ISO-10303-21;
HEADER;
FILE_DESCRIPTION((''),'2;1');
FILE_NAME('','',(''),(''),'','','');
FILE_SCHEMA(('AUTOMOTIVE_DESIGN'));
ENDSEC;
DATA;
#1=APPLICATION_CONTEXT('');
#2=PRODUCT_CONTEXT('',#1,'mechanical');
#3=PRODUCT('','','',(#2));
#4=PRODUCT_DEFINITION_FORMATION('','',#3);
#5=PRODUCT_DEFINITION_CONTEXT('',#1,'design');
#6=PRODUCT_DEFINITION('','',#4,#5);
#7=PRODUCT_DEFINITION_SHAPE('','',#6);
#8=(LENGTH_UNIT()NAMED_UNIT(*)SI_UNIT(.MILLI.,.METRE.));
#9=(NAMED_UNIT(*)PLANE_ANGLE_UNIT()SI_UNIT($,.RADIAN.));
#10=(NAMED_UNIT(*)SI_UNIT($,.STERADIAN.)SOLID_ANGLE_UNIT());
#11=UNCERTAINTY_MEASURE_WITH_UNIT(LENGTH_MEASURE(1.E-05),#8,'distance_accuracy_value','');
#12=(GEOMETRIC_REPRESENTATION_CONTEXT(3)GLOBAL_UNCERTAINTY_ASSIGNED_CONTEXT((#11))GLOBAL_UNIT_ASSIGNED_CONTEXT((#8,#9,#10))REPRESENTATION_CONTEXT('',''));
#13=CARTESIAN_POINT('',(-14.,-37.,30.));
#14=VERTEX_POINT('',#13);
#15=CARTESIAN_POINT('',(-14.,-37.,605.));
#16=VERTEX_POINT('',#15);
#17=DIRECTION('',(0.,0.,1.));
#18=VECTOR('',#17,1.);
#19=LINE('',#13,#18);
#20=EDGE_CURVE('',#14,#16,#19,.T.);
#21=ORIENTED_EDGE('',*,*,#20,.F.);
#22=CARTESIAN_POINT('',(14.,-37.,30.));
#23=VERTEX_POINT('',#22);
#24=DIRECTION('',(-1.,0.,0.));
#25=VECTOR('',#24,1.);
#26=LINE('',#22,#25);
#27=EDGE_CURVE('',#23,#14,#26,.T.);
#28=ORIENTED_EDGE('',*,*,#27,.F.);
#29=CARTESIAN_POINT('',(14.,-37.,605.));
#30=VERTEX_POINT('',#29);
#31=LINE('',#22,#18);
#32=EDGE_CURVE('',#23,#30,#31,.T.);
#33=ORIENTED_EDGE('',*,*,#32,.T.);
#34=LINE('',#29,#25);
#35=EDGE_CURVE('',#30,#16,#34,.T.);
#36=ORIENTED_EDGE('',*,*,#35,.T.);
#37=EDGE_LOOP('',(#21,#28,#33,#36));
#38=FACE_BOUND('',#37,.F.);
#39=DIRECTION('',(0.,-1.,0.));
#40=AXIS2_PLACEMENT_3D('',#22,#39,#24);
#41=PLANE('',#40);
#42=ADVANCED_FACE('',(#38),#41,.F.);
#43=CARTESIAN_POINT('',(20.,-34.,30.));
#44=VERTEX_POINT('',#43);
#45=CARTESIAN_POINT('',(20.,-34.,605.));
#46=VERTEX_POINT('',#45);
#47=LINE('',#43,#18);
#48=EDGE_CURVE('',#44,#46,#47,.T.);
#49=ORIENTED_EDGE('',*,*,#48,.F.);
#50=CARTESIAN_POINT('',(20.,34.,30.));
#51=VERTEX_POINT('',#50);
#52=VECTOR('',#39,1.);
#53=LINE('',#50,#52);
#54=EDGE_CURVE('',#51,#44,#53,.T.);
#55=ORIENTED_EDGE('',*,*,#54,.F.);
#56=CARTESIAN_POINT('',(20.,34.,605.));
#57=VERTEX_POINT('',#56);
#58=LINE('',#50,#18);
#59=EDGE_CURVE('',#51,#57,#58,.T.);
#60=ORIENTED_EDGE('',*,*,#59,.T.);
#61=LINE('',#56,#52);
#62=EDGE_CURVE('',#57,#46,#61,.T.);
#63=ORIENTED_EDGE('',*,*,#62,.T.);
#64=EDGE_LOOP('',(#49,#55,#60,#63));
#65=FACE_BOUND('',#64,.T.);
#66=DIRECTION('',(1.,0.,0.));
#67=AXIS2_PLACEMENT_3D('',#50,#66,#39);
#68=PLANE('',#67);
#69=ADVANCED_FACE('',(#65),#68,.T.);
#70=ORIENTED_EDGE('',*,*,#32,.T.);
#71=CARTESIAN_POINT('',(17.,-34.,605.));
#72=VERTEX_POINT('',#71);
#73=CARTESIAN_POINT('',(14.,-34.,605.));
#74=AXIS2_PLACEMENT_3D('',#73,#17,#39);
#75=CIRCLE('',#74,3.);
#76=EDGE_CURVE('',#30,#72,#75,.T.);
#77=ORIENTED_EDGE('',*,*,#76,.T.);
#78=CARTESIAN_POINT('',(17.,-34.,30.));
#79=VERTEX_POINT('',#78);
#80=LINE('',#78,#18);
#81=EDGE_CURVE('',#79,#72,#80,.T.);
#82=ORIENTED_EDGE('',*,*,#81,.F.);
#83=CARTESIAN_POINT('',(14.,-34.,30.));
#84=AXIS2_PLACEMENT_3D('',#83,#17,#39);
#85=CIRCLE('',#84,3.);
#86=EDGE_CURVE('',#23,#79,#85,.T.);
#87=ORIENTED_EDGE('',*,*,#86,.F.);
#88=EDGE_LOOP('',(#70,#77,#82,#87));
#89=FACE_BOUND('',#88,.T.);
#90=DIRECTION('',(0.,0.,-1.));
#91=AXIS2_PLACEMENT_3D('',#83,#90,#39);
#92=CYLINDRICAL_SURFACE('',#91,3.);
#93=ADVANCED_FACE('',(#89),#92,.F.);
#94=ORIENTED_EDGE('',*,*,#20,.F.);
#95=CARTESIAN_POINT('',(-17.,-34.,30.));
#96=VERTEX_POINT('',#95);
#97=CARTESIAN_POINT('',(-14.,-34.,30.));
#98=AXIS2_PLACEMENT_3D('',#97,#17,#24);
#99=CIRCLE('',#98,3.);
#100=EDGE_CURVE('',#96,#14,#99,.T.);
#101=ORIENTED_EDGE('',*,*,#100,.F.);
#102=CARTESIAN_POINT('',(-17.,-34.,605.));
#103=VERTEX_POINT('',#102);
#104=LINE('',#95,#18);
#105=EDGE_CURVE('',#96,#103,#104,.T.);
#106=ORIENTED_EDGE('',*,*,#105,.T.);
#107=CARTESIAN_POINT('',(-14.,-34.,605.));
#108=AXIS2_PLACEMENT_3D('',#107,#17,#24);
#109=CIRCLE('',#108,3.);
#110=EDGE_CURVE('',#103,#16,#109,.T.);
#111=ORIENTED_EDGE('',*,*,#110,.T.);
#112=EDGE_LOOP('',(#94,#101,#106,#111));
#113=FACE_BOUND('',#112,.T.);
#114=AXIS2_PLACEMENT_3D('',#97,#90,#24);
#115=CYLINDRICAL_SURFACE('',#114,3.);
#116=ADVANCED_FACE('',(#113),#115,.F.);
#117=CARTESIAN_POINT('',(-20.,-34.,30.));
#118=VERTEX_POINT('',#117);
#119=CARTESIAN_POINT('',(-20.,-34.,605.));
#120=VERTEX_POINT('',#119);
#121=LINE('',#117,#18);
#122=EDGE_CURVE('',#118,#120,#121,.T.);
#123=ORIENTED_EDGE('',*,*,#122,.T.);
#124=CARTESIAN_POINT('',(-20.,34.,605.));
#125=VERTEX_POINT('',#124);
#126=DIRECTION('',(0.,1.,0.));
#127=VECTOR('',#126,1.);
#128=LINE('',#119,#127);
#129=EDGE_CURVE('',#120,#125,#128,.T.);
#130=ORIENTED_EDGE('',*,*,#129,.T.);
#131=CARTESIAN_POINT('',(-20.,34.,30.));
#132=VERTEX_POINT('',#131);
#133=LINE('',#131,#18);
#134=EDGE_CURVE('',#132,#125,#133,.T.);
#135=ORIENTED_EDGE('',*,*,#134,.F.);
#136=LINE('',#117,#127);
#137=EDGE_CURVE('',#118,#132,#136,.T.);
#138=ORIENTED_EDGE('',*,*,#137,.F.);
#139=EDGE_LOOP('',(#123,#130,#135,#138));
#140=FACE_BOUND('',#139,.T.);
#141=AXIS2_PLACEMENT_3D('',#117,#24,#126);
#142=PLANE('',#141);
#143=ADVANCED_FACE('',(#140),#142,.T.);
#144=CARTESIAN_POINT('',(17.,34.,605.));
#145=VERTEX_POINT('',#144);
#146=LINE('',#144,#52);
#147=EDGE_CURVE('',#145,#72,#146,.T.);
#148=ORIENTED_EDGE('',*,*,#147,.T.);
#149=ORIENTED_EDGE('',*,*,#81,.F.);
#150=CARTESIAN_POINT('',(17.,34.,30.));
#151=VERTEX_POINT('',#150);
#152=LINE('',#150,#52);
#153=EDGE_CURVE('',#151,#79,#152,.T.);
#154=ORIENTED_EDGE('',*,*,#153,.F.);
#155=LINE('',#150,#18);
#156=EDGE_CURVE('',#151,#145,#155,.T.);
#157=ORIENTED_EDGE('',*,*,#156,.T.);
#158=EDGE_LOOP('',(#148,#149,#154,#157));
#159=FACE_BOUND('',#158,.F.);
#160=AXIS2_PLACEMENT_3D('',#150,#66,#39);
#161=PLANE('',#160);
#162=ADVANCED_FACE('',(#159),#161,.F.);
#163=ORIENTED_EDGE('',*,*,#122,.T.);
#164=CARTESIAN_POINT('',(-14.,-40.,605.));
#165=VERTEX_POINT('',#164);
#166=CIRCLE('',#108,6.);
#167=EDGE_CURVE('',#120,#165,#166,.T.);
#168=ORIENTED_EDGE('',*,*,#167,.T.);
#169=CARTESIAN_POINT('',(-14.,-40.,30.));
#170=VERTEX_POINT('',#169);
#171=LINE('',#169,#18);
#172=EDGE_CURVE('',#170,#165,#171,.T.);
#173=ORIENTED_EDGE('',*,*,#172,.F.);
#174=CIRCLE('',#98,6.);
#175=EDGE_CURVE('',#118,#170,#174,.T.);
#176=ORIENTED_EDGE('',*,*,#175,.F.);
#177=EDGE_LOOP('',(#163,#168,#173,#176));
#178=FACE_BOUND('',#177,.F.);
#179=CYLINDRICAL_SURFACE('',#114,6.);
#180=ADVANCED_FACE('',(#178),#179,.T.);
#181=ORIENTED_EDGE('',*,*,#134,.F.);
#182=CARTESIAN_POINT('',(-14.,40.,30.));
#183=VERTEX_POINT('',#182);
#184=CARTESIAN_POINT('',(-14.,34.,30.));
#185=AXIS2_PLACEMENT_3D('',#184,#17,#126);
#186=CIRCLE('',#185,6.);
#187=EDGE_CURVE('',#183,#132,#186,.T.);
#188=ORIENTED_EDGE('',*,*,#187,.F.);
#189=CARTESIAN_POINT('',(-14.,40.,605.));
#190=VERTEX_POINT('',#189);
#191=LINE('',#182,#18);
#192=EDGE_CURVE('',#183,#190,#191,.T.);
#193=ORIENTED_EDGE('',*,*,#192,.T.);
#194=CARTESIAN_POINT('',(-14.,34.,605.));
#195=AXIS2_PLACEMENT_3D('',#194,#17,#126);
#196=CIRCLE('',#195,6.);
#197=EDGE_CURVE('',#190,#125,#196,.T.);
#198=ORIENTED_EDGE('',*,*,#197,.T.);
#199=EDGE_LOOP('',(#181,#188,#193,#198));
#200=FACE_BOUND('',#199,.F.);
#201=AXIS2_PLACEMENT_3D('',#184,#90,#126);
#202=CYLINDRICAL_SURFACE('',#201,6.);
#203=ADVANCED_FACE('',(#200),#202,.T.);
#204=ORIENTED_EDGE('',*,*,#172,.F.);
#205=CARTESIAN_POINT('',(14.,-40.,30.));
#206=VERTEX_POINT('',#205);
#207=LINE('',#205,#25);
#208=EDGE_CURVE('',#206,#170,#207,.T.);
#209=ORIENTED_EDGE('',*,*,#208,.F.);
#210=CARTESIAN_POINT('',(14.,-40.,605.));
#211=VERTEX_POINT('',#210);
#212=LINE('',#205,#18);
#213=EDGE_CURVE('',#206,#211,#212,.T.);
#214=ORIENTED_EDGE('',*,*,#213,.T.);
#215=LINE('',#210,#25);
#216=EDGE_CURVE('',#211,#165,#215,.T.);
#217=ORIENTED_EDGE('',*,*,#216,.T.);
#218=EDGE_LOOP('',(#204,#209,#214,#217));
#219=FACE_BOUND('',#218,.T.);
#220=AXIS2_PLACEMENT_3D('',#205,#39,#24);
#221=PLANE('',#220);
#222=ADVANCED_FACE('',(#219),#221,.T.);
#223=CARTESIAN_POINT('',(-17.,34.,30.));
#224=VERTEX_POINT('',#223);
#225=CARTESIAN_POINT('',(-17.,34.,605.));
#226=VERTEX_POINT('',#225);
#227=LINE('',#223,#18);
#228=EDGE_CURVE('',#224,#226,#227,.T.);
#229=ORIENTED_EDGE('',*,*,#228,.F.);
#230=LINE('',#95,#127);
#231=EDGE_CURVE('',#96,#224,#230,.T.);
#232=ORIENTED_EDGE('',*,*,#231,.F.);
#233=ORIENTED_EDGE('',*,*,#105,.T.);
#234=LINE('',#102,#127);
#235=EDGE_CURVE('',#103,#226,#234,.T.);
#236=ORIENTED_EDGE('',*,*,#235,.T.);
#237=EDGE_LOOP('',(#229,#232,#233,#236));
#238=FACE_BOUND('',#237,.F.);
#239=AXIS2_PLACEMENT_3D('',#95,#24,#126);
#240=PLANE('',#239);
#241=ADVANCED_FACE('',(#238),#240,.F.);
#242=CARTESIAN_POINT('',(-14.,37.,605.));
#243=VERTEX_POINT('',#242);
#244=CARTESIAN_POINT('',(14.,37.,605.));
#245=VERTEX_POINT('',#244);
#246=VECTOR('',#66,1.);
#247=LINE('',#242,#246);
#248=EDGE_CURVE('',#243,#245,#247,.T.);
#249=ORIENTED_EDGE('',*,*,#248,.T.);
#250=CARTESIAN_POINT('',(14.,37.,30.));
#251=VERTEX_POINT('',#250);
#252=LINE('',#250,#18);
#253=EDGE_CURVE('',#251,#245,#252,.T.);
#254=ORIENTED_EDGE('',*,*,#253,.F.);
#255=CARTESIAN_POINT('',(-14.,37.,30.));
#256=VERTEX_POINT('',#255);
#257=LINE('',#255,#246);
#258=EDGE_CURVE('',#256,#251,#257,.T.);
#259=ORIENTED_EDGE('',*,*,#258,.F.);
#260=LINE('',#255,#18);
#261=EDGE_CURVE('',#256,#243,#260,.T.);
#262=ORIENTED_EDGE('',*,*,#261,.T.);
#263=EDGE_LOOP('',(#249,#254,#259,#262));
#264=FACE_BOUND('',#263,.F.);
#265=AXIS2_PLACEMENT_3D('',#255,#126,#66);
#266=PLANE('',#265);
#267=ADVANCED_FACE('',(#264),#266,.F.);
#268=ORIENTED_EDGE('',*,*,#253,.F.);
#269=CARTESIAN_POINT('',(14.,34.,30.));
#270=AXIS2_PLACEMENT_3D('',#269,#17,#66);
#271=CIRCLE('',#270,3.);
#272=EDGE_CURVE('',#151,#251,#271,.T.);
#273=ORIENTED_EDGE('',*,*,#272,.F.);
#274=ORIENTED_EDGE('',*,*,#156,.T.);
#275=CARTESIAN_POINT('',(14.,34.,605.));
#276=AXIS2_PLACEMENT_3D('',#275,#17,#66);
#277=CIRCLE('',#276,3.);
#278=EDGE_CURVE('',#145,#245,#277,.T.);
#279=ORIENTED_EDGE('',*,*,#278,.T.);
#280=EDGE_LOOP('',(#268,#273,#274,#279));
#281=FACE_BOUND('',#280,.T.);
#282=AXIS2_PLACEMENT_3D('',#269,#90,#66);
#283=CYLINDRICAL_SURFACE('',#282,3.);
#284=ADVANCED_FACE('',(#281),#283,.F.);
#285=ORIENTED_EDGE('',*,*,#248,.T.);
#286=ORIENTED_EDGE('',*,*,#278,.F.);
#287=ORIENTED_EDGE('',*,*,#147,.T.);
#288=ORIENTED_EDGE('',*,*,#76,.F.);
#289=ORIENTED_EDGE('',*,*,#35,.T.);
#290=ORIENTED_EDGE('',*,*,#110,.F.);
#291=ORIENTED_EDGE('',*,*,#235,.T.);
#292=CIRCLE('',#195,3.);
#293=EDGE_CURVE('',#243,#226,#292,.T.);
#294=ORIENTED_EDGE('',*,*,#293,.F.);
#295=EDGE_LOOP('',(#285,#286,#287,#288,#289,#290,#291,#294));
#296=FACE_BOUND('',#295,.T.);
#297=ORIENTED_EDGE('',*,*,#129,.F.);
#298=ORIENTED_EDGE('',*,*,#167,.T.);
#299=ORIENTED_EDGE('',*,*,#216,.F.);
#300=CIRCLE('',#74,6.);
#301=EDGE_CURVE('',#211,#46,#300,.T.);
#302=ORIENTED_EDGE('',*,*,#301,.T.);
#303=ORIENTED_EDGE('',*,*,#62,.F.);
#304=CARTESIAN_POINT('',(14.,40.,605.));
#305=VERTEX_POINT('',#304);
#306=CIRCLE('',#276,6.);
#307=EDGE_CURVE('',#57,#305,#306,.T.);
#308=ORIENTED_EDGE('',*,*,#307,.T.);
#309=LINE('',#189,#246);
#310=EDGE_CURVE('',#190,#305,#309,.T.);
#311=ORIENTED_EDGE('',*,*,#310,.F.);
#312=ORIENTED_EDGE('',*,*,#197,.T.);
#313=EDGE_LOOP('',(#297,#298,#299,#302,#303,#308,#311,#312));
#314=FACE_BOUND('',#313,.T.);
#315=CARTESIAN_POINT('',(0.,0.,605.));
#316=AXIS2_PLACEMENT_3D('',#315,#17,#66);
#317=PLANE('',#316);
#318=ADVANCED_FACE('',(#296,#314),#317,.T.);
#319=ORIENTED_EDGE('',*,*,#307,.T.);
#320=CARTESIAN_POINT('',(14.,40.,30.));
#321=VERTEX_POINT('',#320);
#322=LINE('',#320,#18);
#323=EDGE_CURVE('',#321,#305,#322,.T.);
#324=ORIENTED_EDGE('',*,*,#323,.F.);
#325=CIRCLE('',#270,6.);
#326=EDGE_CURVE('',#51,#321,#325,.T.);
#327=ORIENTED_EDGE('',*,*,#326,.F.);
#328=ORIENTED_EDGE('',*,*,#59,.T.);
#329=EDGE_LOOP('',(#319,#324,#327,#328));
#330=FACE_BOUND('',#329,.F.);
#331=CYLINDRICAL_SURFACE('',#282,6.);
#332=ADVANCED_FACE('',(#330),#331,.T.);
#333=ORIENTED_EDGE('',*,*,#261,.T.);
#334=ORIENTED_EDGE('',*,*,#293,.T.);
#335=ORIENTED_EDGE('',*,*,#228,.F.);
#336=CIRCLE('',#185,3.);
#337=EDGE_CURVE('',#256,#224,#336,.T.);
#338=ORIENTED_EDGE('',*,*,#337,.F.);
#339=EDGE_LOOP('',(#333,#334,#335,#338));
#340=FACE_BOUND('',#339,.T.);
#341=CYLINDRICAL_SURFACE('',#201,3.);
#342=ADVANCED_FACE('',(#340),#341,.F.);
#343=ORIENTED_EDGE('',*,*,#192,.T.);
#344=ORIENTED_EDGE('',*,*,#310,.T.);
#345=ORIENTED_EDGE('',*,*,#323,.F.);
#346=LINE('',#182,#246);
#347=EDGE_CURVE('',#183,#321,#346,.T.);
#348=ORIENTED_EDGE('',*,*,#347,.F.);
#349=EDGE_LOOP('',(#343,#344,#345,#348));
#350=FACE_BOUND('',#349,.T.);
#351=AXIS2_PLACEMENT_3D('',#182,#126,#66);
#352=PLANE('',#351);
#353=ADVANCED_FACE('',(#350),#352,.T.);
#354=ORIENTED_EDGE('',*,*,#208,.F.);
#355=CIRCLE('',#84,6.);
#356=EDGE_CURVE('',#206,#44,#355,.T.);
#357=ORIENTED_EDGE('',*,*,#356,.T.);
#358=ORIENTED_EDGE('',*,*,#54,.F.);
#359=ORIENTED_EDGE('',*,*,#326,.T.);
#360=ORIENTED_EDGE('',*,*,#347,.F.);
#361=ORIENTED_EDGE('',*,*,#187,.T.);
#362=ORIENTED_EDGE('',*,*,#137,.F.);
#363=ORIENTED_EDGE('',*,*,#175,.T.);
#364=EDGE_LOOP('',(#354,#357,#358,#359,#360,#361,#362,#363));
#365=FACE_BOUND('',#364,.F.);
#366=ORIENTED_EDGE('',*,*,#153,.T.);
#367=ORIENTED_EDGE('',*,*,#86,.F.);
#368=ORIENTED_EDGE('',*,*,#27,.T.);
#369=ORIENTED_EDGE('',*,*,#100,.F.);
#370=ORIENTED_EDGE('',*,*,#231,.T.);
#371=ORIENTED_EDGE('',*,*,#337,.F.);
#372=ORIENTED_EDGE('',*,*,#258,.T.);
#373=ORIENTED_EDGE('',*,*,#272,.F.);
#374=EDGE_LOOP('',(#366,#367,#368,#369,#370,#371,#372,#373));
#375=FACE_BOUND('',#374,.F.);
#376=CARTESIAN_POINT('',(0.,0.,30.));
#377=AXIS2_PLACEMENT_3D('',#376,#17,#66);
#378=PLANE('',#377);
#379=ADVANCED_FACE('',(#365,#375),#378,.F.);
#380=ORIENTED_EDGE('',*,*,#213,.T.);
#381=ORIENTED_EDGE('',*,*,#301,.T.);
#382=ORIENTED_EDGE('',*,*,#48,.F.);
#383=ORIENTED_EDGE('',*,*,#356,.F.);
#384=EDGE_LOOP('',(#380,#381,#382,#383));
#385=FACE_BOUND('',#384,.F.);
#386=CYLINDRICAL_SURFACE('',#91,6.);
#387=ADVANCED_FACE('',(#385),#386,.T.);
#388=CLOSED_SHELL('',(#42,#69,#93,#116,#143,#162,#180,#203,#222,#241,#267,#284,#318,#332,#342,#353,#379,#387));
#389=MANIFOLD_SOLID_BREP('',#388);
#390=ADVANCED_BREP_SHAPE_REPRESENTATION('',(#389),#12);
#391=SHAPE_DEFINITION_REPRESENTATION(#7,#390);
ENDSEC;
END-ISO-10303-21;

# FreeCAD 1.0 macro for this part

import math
import FreeCAD as App
import Part
import Sketcher
from FreeCAD import Vector
Q = App.Units.Quantity

doc = App.newDocument("Part")
body = doc.addObject("PartDesign::Body", "Body")

# Sketch on XY plane
sketch1 = body.newObject("Sketcher::SketchObject", "Sketch")
sketch1.AttachmentSupport = (doc.getObject("XY_Plane"), [""])
sketch1.MapMode = "FlatFace"
sketch1.AttachmentOffset = App.Placement(Vector(0, 0, 30), App.Rotation())
sketch1.addGeometry([
    Part.LineSegment(Vector(-20, 34, 0), Vector(-20, -34, 0)),  # 0
    Part.ArcOfCircle(Part.Circle(Vector(-14, -34, 0), Vector(0, 0, 1), 6), math.radians(180), math.radians(270)),  # 1
    Part.LineSegment(Vector(-14, -40, 0), Vector(14, -40, 0)),  # 2
    Part.ArcOfCircle(Part.Circle(Vector(14, -34, 0), Vector(0, 0, 1), 6), math.radians(-90), math.radians(0)),  # 3
    Part.LineSegment(Vector(20, -34, 0), Vector(20, 34, 0)),  # 4
    Part.ArcOfCircle(Part.Circle(Vector(14, 34, 0), Vector(0, 0, 1), 6), math.radians(0), math.radians(90)),  # 5
    Part.LineSegment(Vector(14, 40, 0), Vector(-14, 40, 0)),  # 6
    Part.ArcOfCircle(Part.Circle(Vector(-14, 34, 0), Vector(0, 0, 1), 6), math.radians(90), math.radians(180)),  # 7
    Part.ArcOfCircle(Part.Circle(Vector(-14, 34, 0), Vector(0, 0, 1), 3), math.radians(90), math.radians(180)),  # 8
    Part.LineSegment(Vector(-14, 37, 0), Vector(14, 37, 0)),  # 9
    Part.ArcOfCircle(Part.Circle(Vector(14, 34, 0), Vector(0, 0, 1), 3), math.radians(0), math.radians(90)),  # 10
    Part.LineSegment(Vector(17, 34, 0), Vector(17, -34, 0)),  # 11
    Part.ArcOfCircle(Part.Circle(Vector(14, -34, 0), Vector(0, 0, 1), 3), math.radians(-90), math.radians(0)),  # 12
    Part.LineSegment(Vector(14, -37, 0), Vector(-14, -37, 0)),  # 13
    Part.ArcOfCircle(Part.Circle(Vector(-14, -34, 0), Vector(0, 0, 1), 3), math.radians(180), math.radians(270)),  # 14
    Part.LineSegment(Vector(-17, -34, 0), Vector(-17, 34, 0)),  # 15
], False)
sketch1.addConstraint([
    Sketcher.Constraint("Tangent", 0, 2, 1, 1),
    Sketcher.Constraint("Tangent", 1, 2, 2, 1),
    Sketcher.Constraint("Tangent", 2, 2, 3, 1),
    Sketcher.Constraint("Tangent", 3, 2, 4, 1),
    Sketcher.Constraint("Tangent", 4, 2, 5, 1),
    Sketcher.Constraint("Tangent", 5, 2, 6, 1),
    Sketcher.Constraint("Tangent", 6, 2, 7, 1),
    Sketcher.Constraint("Tangent", 7, 2, 0, 1),
    Sketcher.Constraint("Tangent", 8, 1, 9, 1),
    Sketcher.Constraint("Tangent", 9, 2, 10, 2),
    Sketcher.Constraint("Tangent", 10, 1, 11, 1),
    Sketcher.Constraint("Tangent", 11, 2, 12, 2),
    Sketcher.Constraint("Tangent", 12, 1, 13, 1),
    Sketcher.Constraint("Tangent", 13, 2, 14, 2),
    Sketcher.Constraint("Tangent", 14, 1, 15, 1),
    Sketcher.Constraint("Tangent", 15, 2, 8, 2),
    Sketcher.Constraint("Vertical", 0),
    Sketcher.Constraint("Horizontal", 2),
    Sketcher.Constraint("Vertical", 4),
    Sketcher.Constraint("Horizontal", 6),
    Sketcher.Constraint("Horizontal", 9),
    Sketcher.Constraint("Vertical", 11),
    Sketcher.Constraint("Horizontal", 13),
    Sketcher.Constraint("Vertical", 15),
    Sketcher.Constraint("Coincident", 8, 3, 7, 3),
    Sketcher.Constraint("Coincident", 10, 3, 5, 3),
    Sketcher.Constraint("Coincident", 12, 3, 3, 3),
    Sketcher.Constraint("Equal", 1, 3),
    Sketcher.Constraint("Equal", 3, 5),
    Sketcher.Constraint("Equal", 5, 7),
    Sketcher.Constraint("Equal", 12, 14),
    Sketcher.Constraint("Symmetric", 1, 3, 5, 3, -1, 1),
    Sketcher.Constraint("Radius", 1, Q("6 mm")),
    Sketcher.Constraint("Radius", 8, Q("3 mm")),
    Sketcher.Constraint("DistanceX", 0, 2, -1, 1, Q("20 mm")),
    Sketcher.Constraint("DistanceY", 1, 2, -1, 1, Q("40 mm")),
])
pad1 = body.newObject("PartDesign::Pad", "Pad")
pad1.Profile = sketch1
pad1.Length = 575

doc.recompute()
